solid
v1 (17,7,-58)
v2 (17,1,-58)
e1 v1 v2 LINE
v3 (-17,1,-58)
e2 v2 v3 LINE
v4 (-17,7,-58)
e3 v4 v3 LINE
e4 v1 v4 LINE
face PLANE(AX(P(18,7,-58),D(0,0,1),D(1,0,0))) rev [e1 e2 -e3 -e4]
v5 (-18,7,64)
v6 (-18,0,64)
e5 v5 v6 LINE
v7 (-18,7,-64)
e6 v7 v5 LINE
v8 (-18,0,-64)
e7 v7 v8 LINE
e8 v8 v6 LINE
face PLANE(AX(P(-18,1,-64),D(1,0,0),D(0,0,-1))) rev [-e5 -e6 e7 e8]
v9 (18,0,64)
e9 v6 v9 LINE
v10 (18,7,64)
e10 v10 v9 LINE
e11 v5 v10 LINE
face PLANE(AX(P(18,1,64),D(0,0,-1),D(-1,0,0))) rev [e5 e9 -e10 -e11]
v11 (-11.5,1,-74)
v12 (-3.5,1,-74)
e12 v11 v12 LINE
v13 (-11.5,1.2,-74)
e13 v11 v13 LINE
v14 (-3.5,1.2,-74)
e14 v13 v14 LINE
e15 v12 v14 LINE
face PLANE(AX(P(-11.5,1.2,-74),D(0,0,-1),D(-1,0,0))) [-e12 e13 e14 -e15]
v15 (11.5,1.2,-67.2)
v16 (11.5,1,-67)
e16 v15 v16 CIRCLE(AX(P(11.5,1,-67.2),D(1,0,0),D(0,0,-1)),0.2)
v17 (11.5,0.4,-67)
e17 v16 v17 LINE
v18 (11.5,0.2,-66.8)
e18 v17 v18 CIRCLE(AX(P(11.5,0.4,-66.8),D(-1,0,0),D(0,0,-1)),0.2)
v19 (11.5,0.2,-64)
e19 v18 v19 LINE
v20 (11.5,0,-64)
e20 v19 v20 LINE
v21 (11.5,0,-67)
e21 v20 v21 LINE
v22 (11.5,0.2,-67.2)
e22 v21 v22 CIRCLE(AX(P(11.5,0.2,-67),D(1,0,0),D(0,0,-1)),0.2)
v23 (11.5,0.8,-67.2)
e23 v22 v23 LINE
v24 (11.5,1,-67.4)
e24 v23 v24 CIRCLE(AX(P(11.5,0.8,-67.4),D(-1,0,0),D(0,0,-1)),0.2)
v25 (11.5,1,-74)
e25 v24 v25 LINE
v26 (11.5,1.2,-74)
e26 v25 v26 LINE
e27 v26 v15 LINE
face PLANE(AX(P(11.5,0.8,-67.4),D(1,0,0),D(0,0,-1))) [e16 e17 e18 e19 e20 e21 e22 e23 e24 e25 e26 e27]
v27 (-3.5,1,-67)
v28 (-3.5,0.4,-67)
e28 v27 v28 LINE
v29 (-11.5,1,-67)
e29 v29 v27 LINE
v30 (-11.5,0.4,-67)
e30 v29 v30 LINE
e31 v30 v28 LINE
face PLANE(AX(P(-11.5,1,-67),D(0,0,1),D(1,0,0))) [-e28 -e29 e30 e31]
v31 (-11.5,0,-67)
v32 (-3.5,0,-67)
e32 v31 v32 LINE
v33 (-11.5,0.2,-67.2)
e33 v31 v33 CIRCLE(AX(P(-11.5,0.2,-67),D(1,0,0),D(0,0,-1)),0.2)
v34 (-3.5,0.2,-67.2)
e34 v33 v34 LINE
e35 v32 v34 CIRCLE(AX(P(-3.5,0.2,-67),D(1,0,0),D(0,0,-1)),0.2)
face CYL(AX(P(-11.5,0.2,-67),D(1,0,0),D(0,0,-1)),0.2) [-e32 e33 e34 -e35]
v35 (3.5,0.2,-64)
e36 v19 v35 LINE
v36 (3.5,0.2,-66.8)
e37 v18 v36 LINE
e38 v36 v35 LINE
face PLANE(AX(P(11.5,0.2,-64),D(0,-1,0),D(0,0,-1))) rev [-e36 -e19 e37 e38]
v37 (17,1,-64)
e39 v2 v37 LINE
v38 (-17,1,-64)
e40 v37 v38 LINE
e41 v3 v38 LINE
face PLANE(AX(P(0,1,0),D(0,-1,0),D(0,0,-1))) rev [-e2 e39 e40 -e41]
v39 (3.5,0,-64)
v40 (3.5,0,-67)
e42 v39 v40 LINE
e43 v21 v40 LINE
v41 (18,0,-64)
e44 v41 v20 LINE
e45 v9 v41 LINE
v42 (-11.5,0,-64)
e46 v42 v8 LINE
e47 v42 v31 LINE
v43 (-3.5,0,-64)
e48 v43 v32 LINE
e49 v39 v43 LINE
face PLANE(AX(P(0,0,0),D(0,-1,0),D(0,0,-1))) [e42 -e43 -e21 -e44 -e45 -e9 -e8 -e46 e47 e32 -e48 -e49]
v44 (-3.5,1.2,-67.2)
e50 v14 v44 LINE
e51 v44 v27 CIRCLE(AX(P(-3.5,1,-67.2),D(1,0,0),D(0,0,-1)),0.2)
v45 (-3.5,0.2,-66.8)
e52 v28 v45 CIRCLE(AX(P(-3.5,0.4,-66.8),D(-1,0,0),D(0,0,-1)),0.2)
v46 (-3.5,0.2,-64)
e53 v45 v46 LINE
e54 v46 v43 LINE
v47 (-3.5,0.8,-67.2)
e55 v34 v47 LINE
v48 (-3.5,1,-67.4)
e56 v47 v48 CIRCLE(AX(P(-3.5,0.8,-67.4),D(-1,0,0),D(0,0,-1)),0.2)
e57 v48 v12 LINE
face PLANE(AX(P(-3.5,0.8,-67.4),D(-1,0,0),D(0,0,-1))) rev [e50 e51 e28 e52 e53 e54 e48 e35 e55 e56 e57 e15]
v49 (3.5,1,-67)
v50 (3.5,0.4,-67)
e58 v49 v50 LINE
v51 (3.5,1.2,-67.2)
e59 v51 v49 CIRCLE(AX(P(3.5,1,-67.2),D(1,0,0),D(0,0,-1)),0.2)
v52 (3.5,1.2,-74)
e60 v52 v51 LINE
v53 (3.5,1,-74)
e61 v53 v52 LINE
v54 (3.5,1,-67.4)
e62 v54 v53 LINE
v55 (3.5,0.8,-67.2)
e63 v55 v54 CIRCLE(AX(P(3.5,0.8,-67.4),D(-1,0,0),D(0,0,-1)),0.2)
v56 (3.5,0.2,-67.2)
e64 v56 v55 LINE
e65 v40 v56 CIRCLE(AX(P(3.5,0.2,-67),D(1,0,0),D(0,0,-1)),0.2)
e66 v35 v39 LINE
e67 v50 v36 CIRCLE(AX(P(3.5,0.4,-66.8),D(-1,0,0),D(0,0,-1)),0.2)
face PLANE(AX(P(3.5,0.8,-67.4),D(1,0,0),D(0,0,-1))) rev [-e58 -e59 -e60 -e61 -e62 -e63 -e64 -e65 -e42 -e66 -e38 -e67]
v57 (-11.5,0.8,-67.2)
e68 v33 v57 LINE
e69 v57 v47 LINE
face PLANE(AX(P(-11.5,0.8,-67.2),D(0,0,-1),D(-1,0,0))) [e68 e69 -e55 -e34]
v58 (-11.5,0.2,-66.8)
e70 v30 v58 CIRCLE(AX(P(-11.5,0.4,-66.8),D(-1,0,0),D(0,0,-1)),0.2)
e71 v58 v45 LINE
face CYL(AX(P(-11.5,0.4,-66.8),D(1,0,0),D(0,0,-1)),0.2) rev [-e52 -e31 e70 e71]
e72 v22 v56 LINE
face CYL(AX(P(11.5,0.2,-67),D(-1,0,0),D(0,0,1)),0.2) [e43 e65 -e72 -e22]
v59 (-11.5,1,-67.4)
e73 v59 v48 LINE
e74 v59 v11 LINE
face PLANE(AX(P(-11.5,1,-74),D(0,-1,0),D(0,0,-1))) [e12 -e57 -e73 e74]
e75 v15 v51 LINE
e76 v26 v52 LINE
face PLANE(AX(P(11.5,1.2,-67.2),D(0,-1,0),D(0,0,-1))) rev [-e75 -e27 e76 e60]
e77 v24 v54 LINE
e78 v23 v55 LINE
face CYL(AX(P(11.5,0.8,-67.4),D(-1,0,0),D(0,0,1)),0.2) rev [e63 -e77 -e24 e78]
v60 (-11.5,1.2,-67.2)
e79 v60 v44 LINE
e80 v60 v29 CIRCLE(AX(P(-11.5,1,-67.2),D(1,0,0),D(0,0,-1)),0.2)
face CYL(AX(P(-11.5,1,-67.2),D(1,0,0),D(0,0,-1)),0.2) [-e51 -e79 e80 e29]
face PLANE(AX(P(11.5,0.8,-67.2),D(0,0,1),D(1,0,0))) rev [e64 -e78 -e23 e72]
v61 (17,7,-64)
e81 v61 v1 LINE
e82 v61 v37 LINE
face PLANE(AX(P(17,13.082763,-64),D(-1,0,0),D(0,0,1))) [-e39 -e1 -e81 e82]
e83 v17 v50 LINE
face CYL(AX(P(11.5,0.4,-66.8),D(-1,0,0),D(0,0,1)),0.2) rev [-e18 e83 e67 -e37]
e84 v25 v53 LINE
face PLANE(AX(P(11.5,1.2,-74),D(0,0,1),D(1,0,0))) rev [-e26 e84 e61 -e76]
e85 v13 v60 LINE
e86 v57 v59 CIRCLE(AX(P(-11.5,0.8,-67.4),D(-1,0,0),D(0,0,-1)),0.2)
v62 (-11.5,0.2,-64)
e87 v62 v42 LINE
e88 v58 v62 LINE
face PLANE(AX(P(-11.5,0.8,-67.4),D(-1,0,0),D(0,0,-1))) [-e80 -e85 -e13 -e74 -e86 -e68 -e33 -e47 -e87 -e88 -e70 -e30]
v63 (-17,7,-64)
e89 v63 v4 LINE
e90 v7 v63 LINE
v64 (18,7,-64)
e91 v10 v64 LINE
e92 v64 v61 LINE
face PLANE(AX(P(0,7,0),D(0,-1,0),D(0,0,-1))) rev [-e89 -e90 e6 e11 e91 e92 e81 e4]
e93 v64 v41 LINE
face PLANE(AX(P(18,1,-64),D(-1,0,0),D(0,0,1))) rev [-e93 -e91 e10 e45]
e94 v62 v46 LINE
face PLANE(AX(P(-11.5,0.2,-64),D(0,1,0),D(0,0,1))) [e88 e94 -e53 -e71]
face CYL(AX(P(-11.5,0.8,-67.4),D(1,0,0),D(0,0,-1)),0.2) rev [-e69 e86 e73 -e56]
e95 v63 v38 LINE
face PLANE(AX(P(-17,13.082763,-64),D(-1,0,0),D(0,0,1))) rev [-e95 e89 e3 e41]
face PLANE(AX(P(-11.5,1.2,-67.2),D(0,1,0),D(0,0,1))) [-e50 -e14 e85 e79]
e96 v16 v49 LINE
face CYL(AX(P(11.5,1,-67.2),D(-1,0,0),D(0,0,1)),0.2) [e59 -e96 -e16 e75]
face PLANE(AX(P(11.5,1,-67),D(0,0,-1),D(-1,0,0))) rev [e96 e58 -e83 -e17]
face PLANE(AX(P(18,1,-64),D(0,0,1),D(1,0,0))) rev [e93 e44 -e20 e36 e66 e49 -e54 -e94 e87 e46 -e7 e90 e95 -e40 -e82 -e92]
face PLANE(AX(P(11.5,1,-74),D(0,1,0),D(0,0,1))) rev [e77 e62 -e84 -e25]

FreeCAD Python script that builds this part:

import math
import FreeCAD as App
import Part
import Sketcher

V = App.Vector

doc = App.newDocument("Part")
body = doc.addObject("PartDesign::Body", "Body")

sketch1 = body.newObject("Sketcher::SketchObject", "Sketch")
sketch1.AttachmentSupport = (doc.getObject("XZ_Plane"), [""])
sketch1.MapMode = "FlatFace"
sketch1.addGeometry([
    Part.LineSegment(V(-18, -64, 0), V(-18, 64, 0)),
    Part.LineSegment(V(-18, 64, 0), V(18, 64, 0)),
    Part.LineSegment(V(18, 64, 0), V(18, -64, 0)),
    Part.LineSegment(V(18, -64, 0), V(-18, -64, 0)),
], False)
sketch1.addConstraint([
    Sketcher.Constraint("Coincident", 0, 2, 1, 1),
    Sketcher.Constraint("Coincident", 1, 2, 2, 1),
    Sketcher.Constraint("Coincident", 2, 2, 3, 1),
    Sketcher.Constraint("Coincident", 3, 2, 0, 1),
    Sketcher.Constraint("Vertical", 0),
    Sketcher.Constraint("Horizontal", 1),
    Sketcher.Constraint("Vertical", 2),
    Sketcher.Constraint("Horizontal", 3),
    Sketcher.Constraint("Symmetric", 0, 2, 2, 2, -1, 1),
    Sketcher.Constraint("DistanceX", 1, 1, 1, 2, 36.0),
    Sketcher.Constraint("DistanceY", 0, 1, 0, 2, 128.0),
])
pad1 = body.newObject("PartDesign::Pad", "Pad")
pad1.Profile = sketch1
pad1.Length = 1
pad1.Reversed = True

sketch2 = body.newObject("Sketcher::SketchObject", "Sketch001")
sketch2.AttachmentSupport = (doc.getObject("XZ_Plane"), [""])
sketch2.MapMode = "FlatFace"
sketch2.AttachmentOffset = App.Placement(V(0, 0, -1), App.Rotation())
sketch2.addGeometry([
    Part.LineSegment(V(-18, -58, 0), V(-18, 64, 0)),
    Part.LineSegment(V(-18, 64, 0), V(18, 64, 0)),
    Part.LineSegment(V(18, 64, 0), V(18, -58, 0)),
    Part.LineSegment(V(18, -58, 0), V(-18, -58, 0)),
], False)
sketch2.addConstraint([
    Sketcher.Constraint("Coincident", 0, 2, 1, 1),
    Sketcher.Constraint("Coincident", 1, 2, 2, 1),
    Sketcher.Constraint("Coincident", 2, 2, 3, 1),
    Sketcher.Constraint("Coincident", 3, 2, 0, 1),
    Sketcher.Constraint("Vertical", 0),
    Sketcher.Constraint("Horizontal", 1),
    Sketcher.Constraint("Vertical", 2),
    Sketcher.Constraint("Horizontal", 3),
    Sketcher.Constraint("DistanceX", 1, 1, 1, 2, 36.0),
    Sketcher.Constraint("DistanceY", 0, 1, 0, 2, 122.0),
    Sketcher.Constraint("DistanceX", 0, 2, -1, 1, 18.0),
    Sketcher.Constraint("DistanceY", -1, 1, 0, 2, 64.0),
])
pad2 = body.newObject("PartDesign::Pad", "Pad001")
pad2.Profile = sketch2
pad2.Length = 6
pad2.Reversed = True

sketch3 = body.newObject("Sketcher::SketchObject", "Sketch002")
sketch3.AttachmentSupport = (doc.getObject("XZ_Plane"), [""])
sketch3.MapMode = "FlatFace"
sketch3.AttachmentOffset = App.Placement(V(0, 0, -1), App.Rotation())
sketch3.addGeometry([
    Part.LineSegment(V(-18, -64, 0), V(-18, -58, 0)),
    Part.LineSegment(V(-18, -58, 0), V(-17, -58, 0)),
    Part.LineSegment(V(-17, -58, 0), V(-17, -64, 0)),
    Part.LineSegment(V(-17, -64, 0), V(-18, -64, 0)),
], False)
sketch3.addConstraint([
    Sketcher.Constraint("Coincident", 0, 2, 1, 1),
    Sketcher.Constraint("Coincident", 1, 2, 2, 1),
    Sketcher.Constraint("Coincident", 2, 2, 3, 1),
    Sketcher.Constraint("Coincident", 3, 2, 0, 1),
    Sketcher.Constraint("Vertical", 0),
    Sketcher.Constraint("Horizontal", 1),
    Sketcher.Constraint("Vertical", 2),
    Sketcher.Constraint("Horizontal", 3),
    Sketcher.Constraint("DistanceX", 1, 1, 1, 2, 1.0),
    Sketcher.Constraint("DistanceY", 0, 1, 0, 2, 6.0),
    Sketcher.Constraint("DistanceX", 0, 2, -1, 1, 18.0),
    Sketcher.Constraint("DistanceY", 0, 2, -1, 1, 58.0),
])
pad3 = body.newObject("PartDesign::Pad", "Pad002")
pad3.Profile = sketch3
pad3.Length = 6
pad3.Reversed = True

sketch4 = body.newObject("Sketcher::SketchObject", "Sketch003")
sketch4.AttachmentSupport = (doc.getObject("YZ_Plane"), [""])
sketch4.MapMode = "FlatFace"
sketch4.AttachmentOffset = App.Placement(V(0, 0, 3.5), App.Rotation())
sketch4.addGeometry([
    Part.LineSegment(V(1.2, -74, 0), V(1.2, -67.2, 0)),
    Part.ArcOfCircle(Part.Circle(V(1, -67.2, 0), V(0, 0, 1), 0.2), math.radians(0), math.radians(90)),
    Part.LineSegment(V(1, -67, 0), V(0.4, -67, 0)),
    Part.ArcOfCircle(Part.Circle(V(0.4, -66.8, 0), V(0, 0, 1), 0.2), math.radians(-180), math.radians(-90)),
    Part.LineSegment(V(0.2, -66.8, 0), V(0.2, -64, 0)),
    Part.LineSegment(V(0.2, -64, 0), V(0, -64, 0)),
    Part.LineSegment(V(0, -64, 0), V(0, -67, 0)),
    Part.ArcOfCircle(Part.Circle(V(0.2, -67, 0), V(0, 0, 1), 0.2), math.radians(-180), math.radians(-90)),
    Part.LineSegment(V(0.2, -67.2, 0), V(0.8, -67.2, 0)),
    Part.ArcOfCircle(Part.Circle(V(0.8, -67.4, 0), V(0, 0, 1), 0.2), math.radians(0), math.radians(90)),
    Part.LineSegment(V(1, -67.4, 0), V(1, -74, 0)),
    Part.LineSegment(V(1, -74, 0), V(1.2, -74, 0)),
], False)
sketch4.addConstraint([
    Sketcher.Constraint("Tangent", 0, 2, 1, 1),
    Sketcher.Constraint("Tangent", 1, 2, 2, 1),
    Sketcher.Constraint("Tangent", 2, 2, 3, 2),
    Sketcher.Constraint("Tangent", 3, 1, 4, 1),
    Sketcher.Constraint("Coincident", 4, 2, 5, 1),
    Sketcher.Constraint("Coincident", 5, 2, 6, 1),
    Sketcher.Constraint("Tangent", 6, 2, 7, 1),
    Sketcher.Constraint("Tangent", 7, 2, 8, 1),
    Sketcher.Constraint("Tangent", 8, 2, 9, 2),
    Sketcher.Constraint("Tangent", 9, 1, 10, 1),
    Sketcher.Constraint("Coincident", 10, 2, 11, 1),
    Sketcher.Constraint("Coincident", 11, 2, 0, 1),
    Sketcher.Constraint("Vertical", 0),
    Sketcher.Constraint("Horizontal", 2),
    Sketcher.Constraint("Vertical", 4),
    Sketcher.Constraint("Horizontal", 5),
    Sketcher.Constraint("Vertical", 6),
    Sketcher.Constraint("Horizontal", 8),
    Sketcher.Constraint("Vertical", 10),
    Sketcher.Constraint("Horizontal", 11),
    Sketcher.Constraint("Equal", 1, 3),
    Sketcher.Constraint("Equal", 3, 7),
    Sketcher.Constraint("Equal", 7, 9),
    Sketcher.Constraint("PointOnObject", 5, 2, -2),
    Sketcher.Constraint("Horizontal", 7, 3, 1, 2),
    Sketcher.Constraint("Vertical", 7, 3, 3, 1),
    Sketcher.Constraint("Vertical", 1, 2, 9, 1),
    Sketcher.Constraint("Radius", 1, 0.2),
    Sketcher.Constraint("DistanceY", 6, 2, 6, 1, 3.0),
    Sketcher.Constraint("DistanceX", 2, 2, 2, 1, 0.6),
    Sketcher.Constraint("DistanceY", 0, 1, 0, 2, 6.8),
    Sketcher.Constraint("DistanceY", 7, 3, -1, 1, 67.0),
])
pad4 = body.newObject("PartDesign::Pad", "Pad003")
pad4.Profile = sketch4
pad4.Length = 8
doc.recompute()

mirrored = body.newObject("PartDesign::Mirrored", "Mirrored")
mirrored.Originals = [pad3, pad4]
mirrored.MirrorPlane = (doc.getObject("YZ_Plane"), [""])
body.Tip = mirrored

doc.recompute()
